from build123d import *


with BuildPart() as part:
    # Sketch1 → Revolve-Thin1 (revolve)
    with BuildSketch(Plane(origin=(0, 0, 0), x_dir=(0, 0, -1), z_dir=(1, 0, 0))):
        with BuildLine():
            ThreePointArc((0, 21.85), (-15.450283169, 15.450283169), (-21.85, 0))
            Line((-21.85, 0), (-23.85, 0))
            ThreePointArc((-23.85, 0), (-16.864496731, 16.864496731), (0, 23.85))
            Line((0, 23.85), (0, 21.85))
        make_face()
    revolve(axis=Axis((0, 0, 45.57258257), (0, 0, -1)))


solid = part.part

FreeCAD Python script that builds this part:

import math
import FreeCAD as App
import Part
import Sketcher
Q = App.Units.Quantity

doc = App.newDocument("Part")
body = doc.addObject("PartDesign::Body", "Body")

# Sketch on YZ plane
sketch1 = doc.addObject("Sketcher::SketchObject", "Sketch")
body.addObject(sketch1)
sketch1.AttachmentSupport = (doc.YZ_Plane, [""])
sketch1.MapMode = "FlatFace"
sketch1.addGeometry([
    Part.ArcOfCircle(Part.Circle(App.Vector(0, 0, 0), App.Vector(0, 0, 1), 21.85), math.radians(0), math.radians(90)),
    Part.LineSegment(App.Vector(21.85, 0, 0), App.Vector(23.85, 0, 0)),
    Part.ArcOfCircle(Part.Circle(App.Vector(0, 0, 0), App.Vector(0, 0, 1), 23.85), math.radians(0), math.radians(90)),
    Part.LineSegment(App.Vector(0, 23.85, 0), App.Vector(0, 21.85, 0)),
], False)
sketch1.addConstraint([
    Sketcher.Constraint("Coincident", 0, 1, 1, 1),
    Sketcher.Constraint("Coincident", 1, 2, 2, 1),
    Sketcher.Constraint("Coincident", 2, 2, 3, 1),
    Sketcher.Constraint("Coincident", 3, 2, 0, 2),
    Sketcher.Constraint("Horizontal", 1),
    Sketcher.Constraint("Vertical", 3),
    Sketcher.Constraint("Coincident", 0, 3, -1, 1),
    Sketcher.Constraint("Coincident", 2, 3, -1, 1),
    Sketcher.Constraint("PointOnObject", 0, 1, -1),
    Sketcher.Constraint("PointOnObject", 2, 2, -2),
    Sketcher.Constraint("DistanceX", 1, 1, 1, 2, Q("2 mm")),
    Sketcher.Constraint("Radius", 0, Q("21.85 mm")),
])
revolution = doc.addObject("PartDesign::Revolution", "Revolution")
body.addObject(revolution)
revolution.Profile = sketch1
revolution.ReferenceAxis = (sketch1, ["V_Axis"])
revolution.Angle = 360

doc.recompute()
